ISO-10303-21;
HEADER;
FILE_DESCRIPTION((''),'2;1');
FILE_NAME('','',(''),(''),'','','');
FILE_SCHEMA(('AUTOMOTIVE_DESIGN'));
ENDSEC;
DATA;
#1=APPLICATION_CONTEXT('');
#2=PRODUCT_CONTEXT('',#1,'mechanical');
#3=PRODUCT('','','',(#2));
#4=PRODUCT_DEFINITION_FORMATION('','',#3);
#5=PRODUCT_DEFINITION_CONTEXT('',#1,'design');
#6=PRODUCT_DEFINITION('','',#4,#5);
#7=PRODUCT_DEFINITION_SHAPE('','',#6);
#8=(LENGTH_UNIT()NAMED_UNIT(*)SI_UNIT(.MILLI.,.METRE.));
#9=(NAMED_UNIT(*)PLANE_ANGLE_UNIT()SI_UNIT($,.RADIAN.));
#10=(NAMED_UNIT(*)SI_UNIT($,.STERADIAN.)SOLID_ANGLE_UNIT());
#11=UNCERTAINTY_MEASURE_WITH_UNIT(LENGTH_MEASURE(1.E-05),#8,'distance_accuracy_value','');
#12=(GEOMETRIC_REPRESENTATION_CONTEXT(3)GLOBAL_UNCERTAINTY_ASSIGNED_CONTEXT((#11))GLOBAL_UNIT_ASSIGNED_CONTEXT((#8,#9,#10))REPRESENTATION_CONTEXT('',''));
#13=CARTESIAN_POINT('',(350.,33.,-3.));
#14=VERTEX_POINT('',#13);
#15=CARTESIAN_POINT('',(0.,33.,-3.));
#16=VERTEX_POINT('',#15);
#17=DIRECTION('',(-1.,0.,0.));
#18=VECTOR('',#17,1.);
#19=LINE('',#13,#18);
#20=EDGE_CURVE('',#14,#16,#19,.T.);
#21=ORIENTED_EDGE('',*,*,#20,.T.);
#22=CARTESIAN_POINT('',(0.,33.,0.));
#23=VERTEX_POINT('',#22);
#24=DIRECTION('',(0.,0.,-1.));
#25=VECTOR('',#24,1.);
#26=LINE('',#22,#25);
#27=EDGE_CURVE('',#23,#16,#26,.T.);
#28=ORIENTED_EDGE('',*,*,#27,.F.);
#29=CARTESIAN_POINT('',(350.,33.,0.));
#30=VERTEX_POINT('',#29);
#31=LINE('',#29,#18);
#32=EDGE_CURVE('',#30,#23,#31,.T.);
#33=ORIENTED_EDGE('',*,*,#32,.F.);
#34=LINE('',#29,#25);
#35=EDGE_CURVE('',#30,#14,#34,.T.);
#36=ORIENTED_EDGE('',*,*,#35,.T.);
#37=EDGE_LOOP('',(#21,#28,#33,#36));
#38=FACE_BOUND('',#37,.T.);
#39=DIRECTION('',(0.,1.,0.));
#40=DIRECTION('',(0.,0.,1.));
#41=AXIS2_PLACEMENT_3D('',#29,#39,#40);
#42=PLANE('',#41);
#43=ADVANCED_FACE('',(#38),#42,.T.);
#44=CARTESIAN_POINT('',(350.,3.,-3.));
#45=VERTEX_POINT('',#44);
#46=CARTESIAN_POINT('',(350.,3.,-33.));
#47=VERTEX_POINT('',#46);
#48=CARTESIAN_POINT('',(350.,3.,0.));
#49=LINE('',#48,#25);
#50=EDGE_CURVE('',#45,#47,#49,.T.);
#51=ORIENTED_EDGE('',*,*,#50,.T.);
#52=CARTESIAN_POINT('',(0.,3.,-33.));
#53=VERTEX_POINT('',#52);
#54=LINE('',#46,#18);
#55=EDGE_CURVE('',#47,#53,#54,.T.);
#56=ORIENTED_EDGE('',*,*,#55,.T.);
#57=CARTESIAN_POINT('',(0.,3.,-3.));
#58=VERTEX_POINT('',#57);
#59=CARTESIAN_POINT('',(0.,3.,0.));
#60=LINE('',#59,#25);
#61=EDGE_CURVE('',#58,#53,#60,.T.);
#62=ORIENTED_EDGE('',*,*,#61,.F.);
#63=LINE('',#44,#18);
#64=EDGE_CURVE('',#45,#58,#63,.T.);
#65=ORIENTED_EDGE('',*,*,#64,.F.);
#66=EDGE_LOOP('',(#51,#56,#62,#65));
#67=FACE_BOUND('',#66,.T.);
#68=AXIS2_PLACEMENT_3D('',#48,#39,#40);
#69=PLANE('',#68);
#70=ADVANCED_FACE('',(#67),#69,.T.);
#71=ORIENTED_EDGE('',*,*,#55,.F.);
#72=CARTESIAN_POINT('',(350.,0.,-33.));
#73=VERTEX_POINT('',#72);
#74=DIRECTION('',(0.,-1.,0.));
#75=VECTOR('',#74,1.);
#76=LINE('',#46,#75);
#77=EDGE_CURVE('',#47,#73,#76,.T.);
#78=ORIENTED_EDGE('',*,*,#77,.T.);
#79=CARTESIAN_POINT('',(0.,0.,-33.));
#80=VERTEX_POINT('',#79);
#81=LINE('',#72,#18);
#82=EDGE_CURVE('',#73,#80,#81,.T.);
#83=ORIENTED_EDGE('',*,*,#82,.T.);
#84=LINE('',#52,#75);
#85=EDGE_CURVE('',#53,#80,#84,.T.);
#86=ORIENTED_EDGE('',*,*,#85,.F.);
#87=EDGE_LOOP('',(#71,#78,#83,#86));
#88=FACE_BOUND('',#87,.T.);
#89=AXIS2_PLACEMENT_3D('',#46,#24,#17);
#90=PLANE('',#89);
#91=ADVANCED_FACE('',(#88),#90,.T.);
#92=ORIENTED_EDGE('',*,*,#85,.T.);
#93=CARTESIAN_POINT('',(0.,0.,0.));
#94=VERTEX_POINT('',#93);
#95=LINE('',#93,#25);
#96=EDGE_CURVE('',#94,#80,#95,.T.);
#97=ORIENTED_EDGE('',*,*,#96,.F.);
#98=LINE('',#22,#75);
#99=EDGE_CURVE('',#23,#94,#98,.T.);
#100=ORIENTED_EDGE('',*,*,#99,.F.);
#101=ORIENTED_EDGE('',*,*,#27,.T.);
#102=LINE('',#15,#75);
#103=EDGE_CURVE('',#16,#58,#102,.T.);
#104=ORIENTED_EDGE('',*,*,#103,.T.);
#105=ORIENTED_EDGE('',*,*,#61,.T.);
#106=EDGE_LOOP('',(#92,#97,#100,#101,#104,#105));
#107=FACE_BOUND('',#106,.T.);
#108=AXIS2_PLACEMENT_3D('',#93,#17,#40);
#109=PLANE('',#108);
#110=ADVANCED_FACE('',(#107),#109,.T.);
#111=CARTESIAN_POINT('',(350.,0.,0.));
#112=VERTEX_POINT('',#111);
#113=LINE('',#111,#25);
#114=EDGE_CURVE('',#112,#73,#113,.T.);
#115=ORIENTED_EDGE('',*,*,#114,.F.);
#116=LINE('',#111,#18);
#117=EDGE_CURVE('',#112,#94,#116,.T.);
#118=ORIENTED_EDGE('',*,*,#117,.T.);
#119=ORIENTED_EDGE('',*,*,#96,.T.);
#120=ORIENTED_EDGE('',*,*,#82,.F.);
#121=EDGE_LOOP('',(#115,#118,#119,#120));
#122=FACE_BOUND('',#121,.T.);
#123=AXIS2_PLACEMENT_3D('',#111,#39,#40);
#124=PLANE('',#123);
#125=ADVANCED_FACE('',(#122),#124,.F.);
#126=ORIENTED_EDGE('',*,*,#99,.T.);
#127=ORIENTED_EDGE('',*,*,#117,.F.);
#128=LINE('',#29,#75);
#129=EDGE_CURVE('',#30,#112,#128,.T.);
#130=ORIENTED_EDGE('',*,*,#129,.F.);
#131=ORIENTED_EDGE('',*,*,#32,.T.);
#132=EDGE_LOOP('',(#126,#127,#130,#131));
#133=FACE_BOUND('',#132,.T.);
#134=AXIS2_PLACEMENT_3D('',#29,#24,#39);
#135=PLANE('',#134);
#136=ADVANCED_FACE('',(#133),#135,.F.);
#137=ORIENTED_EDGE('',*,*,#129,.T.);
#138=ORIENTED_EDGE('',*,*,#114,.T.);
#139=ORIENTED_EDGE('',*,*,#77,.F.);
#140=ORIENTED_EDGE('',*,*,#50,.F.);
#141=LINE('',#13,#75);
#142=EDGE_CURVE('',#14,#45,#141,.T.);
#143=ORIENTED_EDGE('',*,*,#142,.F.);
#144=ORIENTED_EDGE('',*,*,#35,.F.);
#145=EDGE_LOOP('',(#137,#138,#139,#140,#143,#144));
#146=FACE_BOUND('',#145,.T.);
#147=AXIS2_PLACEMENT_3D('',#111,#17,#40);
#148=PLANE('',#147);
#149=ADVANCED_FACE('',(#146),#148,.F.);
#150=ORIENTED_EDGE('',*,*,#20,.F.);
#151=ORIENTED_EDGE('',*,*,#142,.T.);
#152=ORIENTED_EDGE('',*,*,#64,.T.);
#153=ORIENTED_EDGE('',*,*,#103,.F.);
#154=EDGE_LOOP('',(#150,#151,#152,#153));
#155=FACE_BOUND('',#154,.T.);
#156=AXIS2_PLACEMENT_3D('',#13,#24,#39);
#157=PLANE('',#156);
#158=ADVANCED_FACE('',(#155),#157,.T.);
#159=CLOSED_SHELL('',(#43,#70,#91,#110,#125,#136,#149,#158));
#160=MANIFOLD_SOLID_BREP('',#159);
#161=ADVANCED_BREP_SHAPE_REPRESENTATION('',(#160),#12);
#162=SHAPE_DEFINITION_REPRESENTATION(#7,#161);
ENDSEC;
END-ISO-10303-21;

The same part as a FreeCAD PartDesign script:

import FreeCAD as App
import Part
import Sketcher
Q = App.Units.Quantity


def add_polygon(sketch, points):
    """Adds a closed chain of lines whose ends are joined by coincident constraints."""
    first, n = sketch.GeometryCount, len(points)
    for a, b in zip(points, points[1:] + points[:1]):
        sketch.addGeometry(Part.LineSegment(App.Vector(*a, 0), App.Vector(*b, 0)), False)
    for i in range(n):
        sketch.addConstraint(Sketcher.Constraint("Coincident", first + i, 2, first + (i + 1) % n, 1))

doc = App.newDocument("Part")
body = doc.addObject("PartDesign::Body", "Body")

# Sketch on YZ plane
sketch1 = doc.addObject("Sketcher::SketchObject", "Sketch")
body.addObject(sketch1)
sketch1.AttachmentSupport = (doc.YZ_Plane, [""])
sketch1.MapMode = "FlatFace"
add_polygon(sketch1, [(33, 0), (0, 0), (0, -33), (3, -33), (3, -3), (33, -3)])  # lines 0-5
sketch1.addConstraint(Sketcher.Constraint("Horizontal", 0))
sketch1.addConstraint(Sketcher.Constraint("Vertical", 1))
sketch1.addConstraint(Sketcher.Constraint("Horizontal", 2))
sketch1.addConstraint(Sketcher.Constraint("Vertical", 3))
sketch1.addConstraint(Sketcher.Constraint("Horizontal", 4))
sketch1.addConstraint(Sketcher.Constraint("Vertical", 5))
sketch1.addConstraint(Sketcher.Constraint("Coincident", 0, 2, -1, 1))
sketch1.addConstraint(Sketcher.Constraint("Equal", 0, 1))
sketch1.addConstraint(Sketcher.Constraint("Equal", 4, 3))
sketch1.addConstraint(Sketcher.Constraint("DistanceX", 0, 2, 0, 1, Q("33 mm")))
sketch1.addConstraint(Sketcher.Constraint("DistanceX", 2, 1, 2, 2, Q("3 mm")))
pad1 = doc.addObject("PartDesign::Pad", "Pad")
body.addObject(pad1)
pad1.Profile = sketch1
pad1.Length = 350

doc.recompute()
